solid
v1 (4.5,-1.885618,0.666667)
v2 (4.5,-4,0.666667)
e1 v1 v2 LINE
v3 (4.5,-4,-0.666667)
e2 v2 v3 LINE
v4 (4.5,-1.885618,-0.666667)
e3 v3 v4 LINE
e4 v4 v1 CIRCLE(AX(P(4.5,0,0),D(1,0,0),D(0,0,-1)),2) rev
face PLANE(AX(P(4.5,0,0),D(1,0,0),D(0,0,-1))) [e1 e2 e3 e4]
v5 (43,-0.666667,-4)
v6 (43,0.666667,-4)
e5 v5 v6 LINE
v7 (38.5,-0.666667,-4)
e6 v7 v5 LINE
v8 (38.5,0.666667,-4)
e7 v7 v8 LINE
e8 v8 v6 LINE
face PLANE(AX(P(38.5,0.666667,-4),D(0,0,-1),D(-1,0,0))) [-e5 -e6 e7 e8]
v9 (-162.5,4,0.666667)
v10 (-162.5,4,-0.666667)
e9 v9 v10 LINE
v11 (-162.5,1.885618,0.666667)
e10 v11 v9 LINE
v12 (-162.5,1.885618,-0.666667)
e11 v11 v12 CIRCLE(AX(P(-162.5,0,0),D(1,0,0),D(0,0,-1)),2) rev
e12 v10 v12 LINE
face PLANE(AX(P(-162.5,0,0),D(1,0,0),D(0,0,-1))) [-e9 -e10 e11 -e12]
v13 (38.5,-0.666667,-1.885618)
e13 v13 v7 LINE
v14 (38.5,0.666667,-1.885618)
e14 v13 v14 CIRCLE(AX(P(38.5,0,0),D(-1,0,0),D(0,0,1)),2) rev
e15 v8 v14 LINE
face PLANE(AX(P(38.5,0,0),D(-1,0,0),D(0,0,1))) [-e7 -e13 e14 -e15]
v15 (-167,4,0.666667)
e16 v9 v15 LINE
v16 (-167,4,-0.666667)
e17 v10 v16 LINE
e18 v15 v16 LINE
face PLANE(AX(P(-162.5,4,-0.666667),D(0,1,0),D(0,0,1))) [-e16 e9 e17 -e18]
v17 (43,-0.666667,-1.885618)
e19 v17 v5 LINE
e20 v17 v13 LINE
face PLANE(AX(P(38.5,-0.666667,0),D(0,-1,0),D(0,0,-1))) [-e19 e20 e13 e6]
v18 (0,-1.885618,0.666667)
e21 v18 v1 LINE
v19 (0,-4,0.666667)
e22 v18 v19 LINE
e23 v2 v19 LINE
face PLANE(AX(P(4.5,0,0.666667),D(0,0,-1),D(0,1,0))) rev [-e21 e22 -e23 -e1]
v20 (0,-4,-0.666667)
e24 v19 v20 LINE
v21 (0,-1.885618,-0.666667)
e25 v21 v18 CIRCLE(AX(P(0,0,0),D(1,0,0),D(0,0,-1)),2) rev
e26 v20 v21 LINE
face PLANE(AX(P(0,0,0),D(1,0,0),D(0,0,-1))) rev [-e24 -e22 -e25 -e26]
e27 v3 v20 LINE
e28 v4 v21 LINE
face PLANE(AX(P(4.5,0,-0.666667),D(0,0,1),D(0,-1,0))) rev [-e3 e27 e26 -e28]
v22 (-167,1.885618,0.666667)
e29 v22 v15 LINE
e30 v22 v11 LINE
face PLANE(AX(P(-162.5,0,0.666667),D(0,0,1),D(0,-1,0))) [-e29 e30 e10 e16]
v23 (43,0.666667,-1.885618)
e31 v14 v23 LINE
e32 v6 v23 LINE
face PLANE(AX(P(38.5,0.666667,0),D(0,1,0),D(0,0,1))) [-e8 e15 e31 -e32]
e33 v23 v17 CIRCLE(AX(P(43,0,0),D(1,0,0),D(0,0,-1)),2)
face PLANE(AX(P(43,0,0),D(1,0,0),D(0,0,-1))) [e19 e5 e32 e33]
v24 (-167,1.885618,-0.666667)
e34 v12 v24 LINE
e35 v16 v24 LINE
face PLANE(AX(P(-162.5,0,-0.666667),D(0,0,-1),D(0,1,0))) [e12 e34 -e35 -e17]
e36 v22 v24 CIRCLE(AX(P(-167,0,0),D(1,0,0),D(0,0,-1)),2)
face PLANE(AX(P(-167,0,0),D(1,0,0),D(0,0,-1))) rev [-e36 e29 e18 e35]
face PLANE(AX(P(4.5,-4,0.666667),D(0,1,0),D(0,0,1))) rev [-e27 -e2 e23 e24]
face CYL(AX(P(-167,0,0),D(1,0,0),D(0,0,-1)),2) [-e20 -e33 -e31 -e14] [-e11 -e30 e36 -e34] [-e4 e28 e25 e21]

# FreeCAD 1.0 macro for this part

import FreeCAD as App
import Part
import Sketcher
Q = App.Units.Quantity


def add_polygon(sketch, points):
    """Adds a closed chain of lines whose ends are joined by coincident constraints."""
    first, n = sketch.GeometryCount, len(points)
    for a, b in zip(points, points[1:] + points[:1]):
        sketch.addGeometry(Part.LineSegment(App.Vector(*a, 0), App.Vector(*b, 0)), False)
    for i in range(n):
        sketch.addConstraint(Sketcher.Constraint("Coincident", first + i, 2, first + (i + 1) % n, 1))

doc = App.newDocument("Part")
params = doc.addObject("Spreadsheet::Sheet", "Params")
for row, (alias, value) in enumerate([
    ("sketch1_diameter", "4 mm"),
    ("pad1_length", "43 mm"),
    ("pad1_length2", "167 mm"),
    ("sketch2_width", "4 mm"),
    ("pad2_length", "4.5 mm"),
    ("sketch3_height", "4 mm"),
    ("pad3_length", "4.5 mm"),
    ("sketch4_width", "4 mm"),
    ("pad4_length", "4.5 mm"),
], start=1):
    params.set(f"A{row}", alias)
    params.set(f"B{row}", "=" + value)
    params.setAlias(f"B{row}", alias)

body = doc.addObject("PartDesign::Body", "Body")

sketch1 = body.newObject("Sketcher::SketchObject", "Sketch")
sketch1.AttachmentSupport = (doc.getObject("YZ_Plane"), [""])
sketch1.MapMode = "FlatFace"
sketch1.addGeometry(Part.Circle(App.Vector(0, 0, 0), App.Vector(0, 0, 1), 2), False)
sketch1.addConstraint(Sketcher.Constraint("Coincident", 0, 3, -1, 1))
sketch1.addConstraint(Sketcher.Constraint("Diameter", 0, Q("4 mm")))
sketch1.setExpression("Constraints[1]", "Params.sketch1_diameter")
pad1 = body.newObject("PartDesign::Pad", "Pad")
pad1.Profile = sketch1
pad1.Type = "TwoLengths"
pad1.setExpression("Length", "Params.pad1_length")
pad1.setExpression("Length2", "Params.pad1_length2")

sketch2 = body.newObject("Sketcher::SketchObject", "Sketch001")
sketch2.AttachmentSupport = (doc.getObject("YZ_Plane"), [""])
sketch2.MapMode = "FlatFace"
sketch2.AttachmentOffset = App.Placement(App.Vector(0, 0, -167), App.Rotation())
add_polygon(sketch2, [(4, -0.7), (0, -0.7), (0, 0.7), (4, 0.7)])
sketch2.addConstraint(Sketcher.Constraint("Horizontal", 0))
sketch2.addConstraint(Sketcher.Constraint("Vertical", 1))
sketch2.addConstraint(Sketcher.Constraint("Horizontal", 2))
sketch2.addConstraint(Sketcher.Constraint("Vertical", 3))
sketch2.addConstraint(Sketcher.Constraint("Symmetric", 0, 2, 1, 2, -1, 1))
sketch2.addConstraint(Sketcher.Constraint("DistanceX", 0, 2, 0, 1, Q("4 mm")))
sketch2.addConstraint(Sketcher.Constraint("DistanceY", 1, 1, 1, 2, Q("1.333333 mm")))
sketch2.setExpression("Constraints[9]", "Params.sketch2_width")
pad2 = body.newObject("PartDesign::Pad", "Pad001")
pad2.Profile = sketch2
pad2.setExpression("Length", "Params.pad2_length")

sketch3 = body.newObject("Sketcher::SketchObject", "Sketch002")
sketch3.AttachmentSupport = (doc.getObject("YZ_Plane"), [""])
sketch3.MapMode = "FlatFace"
sketch3.AttachmentOffset = App.Placement(App.Vector(0, 0, 43), App.Rotation())
add_polygon(sketch3, [(0.7, 0), (-0.7, 0), (-0.7, -4), (0.7, -4)])
sketch3.addConstraint(Sketcher.Constraint("Horizontal", 0))
sketch3.addConstraint(Sketcher.Constraint("Vertical", 1))
sketch3.addConstraint(Sketcher.Constraint("Horizontal", 2))
sketch3.addConstraint(Sketcher.Constraint("Vertical", 3))
sketch3.addConstraint(Sketcher.Constraint("Symmetric", 0, 2, 3, 2, -1, 1))
sketch3.addConstraint(Sketcher.Constraint("DistanceY", 1, 2, 1, 1, Q("4 mm")))
sketch3.addConstraint(Sketcher.Constraint("DistanceX", 0, 2, 0, 1, Q("1.333333 mm")))
sketch3.setExpression("Constraints[9]", "Params.sketch3_height")
pad3 = body.newObject("PartDesign::Pad", "Pad002")
pad3.Profile = sketch3
pad3.setExpression("Length", "Params.pad3_length")
pad3.Reversed = True

sketch4 = body.newObject("Sketcher::SketchObject", "Sketch003")
sketch4.AttachmentSupport = (doc.getObject("YZ_Plane"), [""])
sketch4.MapMode = "FlatFace"
add_polygon(sketch4, [(0, 0.7), (-4, 0.7), (-4, -0.7), (0, -0.7)])
sketch4.addConstraint(Sketcher.Constraint("Horizontal", 0))
sketch4.addConstraint(Sketcher.Constraint("Vertical", 1))
sketch4.addConstraint(Sketcher.Constraint("Horizontal", 2))
sketch4.addConstraint(Sketcher.Constraint("Vertical", 3))
sketch4.addConstraint(Sketcher.Constraint("Symmetric", 2, 2, 3, 2, -1, 1))
sketch4.addConstraint(Sketcher.Constraint("DistanceX", 0, 2, 0, 1, Q("4 mm")))
sketch4.addConstraint(Sketcher.Constraint("DistanceY", 1, 2, 1, 1, Q("1.333333 mm")))
sketch4.setExpression("Constraints[9]", "Params.sketch4_width")
pad4 = body.newObject("PartDesign::Pad", "Pad003")
pad4.Profile = sketch4
pad4.setExpression("Length", "Params.pad4_length")

doc.recompute()
